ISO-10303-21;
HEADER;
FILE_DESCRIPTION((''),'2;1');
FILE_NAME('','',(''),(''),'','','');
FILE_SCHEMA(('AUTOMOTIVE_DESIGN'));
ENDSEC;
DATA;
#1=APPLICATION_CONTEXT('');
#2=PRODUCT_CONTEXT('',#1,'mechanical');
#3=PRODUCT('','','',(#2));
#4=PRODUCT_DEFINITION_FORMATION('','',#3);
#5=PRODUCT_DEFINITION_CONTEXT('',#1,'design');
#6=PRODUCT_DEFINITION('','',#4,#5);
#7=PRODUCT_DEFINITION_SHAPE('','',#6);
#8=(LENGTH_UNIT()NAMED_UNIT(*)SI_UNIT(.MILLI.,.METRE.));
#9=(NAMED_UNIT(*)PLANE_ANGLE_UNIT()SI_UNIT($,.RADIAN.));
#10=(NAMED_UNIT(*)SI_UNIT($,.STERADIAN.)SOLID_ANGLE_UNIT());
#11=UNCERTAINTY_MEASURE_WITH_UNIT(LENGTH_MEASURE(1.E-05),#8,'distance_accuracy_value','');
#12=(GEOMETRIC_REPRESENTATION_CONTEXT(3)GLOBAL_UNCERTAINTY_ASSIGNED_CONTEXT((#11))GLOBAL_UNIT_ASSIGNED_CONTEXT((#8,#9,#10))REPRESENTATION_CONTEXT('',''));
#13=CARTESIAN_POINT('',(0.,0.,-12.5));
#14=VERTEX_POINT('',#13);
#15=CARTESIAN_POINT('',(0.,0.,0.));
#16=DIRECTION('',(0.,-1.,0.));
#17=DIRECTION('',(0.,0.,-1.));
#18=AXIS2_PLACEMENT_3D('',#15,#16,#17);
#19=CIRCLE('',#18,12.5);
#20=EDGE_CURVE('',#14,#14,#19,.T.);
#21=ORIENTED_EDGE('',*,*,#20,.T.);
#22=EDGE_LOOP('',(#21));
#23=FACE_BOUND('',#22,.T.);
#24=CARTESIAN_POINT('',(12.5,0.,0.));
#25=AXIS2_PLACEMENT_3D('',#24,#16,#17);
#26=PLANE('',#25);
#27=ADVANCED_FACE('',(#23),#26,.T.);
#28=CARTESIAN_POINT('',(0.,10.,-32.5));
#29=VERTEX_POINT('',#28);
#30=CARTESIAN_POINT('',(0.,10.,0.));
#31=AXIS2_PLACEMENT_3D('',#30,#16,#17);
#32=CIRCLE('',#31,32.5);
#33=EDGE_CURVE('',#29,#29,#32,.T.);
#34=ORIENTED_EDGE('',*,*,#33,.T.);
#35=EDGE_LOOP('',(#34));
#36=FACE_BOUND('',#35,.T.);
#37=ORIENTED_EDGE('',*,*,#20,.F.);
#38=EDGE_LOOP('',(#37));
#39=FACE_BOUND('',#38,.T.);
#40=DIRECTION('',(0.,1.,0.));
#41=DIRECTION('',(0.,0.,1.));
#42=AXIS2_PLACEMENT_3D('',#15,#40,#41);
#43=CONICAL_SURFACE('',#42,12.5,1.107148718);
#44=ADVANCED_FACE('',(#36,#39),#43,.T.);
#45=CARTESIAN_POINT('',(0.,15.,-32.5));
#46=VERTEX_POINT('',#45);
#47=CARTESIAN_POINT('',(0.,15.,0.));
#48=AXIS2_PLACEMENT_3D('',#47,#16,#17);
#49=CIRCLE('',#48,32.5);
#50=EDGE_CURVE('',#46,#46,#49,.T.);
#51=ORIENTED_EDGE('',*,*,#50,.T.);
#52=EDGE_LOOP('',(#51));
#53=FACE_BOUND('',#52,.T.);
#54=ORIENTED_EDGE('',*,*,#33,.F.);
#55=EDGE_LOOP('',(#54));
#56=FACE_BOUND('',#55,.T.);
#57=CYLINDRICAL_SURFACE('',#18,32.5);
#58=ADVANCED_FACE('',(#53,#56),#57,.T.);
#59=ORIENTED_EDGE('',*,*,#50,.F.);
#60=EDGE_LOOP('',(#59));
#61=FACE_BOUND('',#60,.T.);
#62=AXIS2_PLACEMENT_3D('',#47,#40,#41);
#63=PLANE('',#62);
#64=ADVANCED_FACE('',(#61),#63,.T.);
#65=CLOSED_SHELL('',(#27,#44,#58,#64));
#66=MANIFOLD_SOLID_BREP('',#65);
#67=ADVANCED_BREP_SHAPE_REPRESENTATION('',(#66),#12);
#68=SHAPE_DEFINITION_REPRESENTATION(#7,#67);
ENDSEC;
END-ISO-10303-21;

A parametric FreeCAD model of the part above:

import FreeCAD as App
import Part
import Sketcher

doc = App.newDocument("Part")
params = doc.addObject("Spreadsheet::Sheet", "Params")
for row, (alias, value) in enumerate([
    ("sketch1_height", "15 mm"),
    ("sketch1_height2", "5 mm"),
    ("sketch1_width", "12.5 mm"),
    ("sketch1_width2", "32.5 mm"),
    ("revolution_angle", "360 deg"),
], start=1):
    params.set(f"A{row}", alias)
    params.set(f"B{row}", "=" + value)
    params.setAlias(f"B{row}", alias)

body = doc.addObject("PartDesign::Body", "Body")

# Sketch on XY plane
sketch1 = body.newObject("Sketcher::SketchObject", "Sketch")
sketch1.AttachmentSupport = (doc.getObject("XY_Plane"), [""])
sketch1.MapMode = "FlatFace"
sketch1.addGeometry(Part.LineSegment(App.Vector(0, 15, 0), App.Vector(0, 0, 0)), False)
sketch1.addGeometry(Part.LineSegment(App.Vector(0, 0, 0), App.Vector(12, 0, 0)), False)
sketch1.addGeometry(Part.LineSegment(App.Vector(12, 0, 0), App.Vector(32, 10, 0)), False)
sketch1.addGeometry(Part.LineSegment(App.Vector(32, 10, 0), App.Vector(32, 15, 0)), False)
sketch1.addGeometry(Part.LineSegment(App.Vector(32, 15, 0), App.Vector(0, 15, 0)), False)
sketch1.addConstraint(Sketcher.Constraint("Coincident", 0, 2, 1, 1))
sketch1.addConstraint(Sketcher.Constraint("Coincident", 1, 2, 2, 1))
sketch1.addConstraint(Sketcher.Constraint("Coincident", 2, 2, 3, 1))
sketch1.addConstraint(Sketcher.Constraint("Coincident", 3, 2, 4, 1))
sketch1.addConstraint(Sketcher.Constraint("Coincident", 4, 2, 0, 1))
sketch1.addConstraint(Sketcher.Constraint("Vertical", 0))
sketch1.addConstraint(Sketcher.Constraint("Horizontal", 1))
sketch1.addConstraint(Sketcher.Constraint("Vertical", 3))
sketch1.addConstraint(Sketcher.Constraint("Horizontal", 4))
sketch1.addConstraint(Sketcher.Constraint("Coincident", 0, 2, -1, 1))
sketch1.addConstraint(Sketcher.Constraint("DistanceY", 0, 2, 0, 1, 15.0))
sketch1.addConstraint(Sketcher.Constraint("DistanceY", 3, 1, 3, 2, 5.0))
sketch1.addConstraint(Sketcher.Constraint("DistanceX", 1, 1, 1, 2, 12.5))
sketch1.addConstraint(Sketcher.Constraint("DistanceX", 4, 2, 4, 1, 32.5))
sketch1.setExpression("Constraints[10]", "Params.sketch1_height")
sketch1.setExpression("Constraints[11]", "Params.sketch1_height2")
sketch1.setExpression("Constraints[12]", "Params.sketch1_width")
sketch1.setExpression("Constraints[13]", "Params.sketch1_width2")
revolution = body.newObject("PartDesign::Revolution", "Revolution")
revolution.Profile = sketch1
revolution.ReferenceAxis = (sketch1, ["V_Axis"])
revolution.setExpression("Angle", "Params.revolution_angle")

doc.recompute()
